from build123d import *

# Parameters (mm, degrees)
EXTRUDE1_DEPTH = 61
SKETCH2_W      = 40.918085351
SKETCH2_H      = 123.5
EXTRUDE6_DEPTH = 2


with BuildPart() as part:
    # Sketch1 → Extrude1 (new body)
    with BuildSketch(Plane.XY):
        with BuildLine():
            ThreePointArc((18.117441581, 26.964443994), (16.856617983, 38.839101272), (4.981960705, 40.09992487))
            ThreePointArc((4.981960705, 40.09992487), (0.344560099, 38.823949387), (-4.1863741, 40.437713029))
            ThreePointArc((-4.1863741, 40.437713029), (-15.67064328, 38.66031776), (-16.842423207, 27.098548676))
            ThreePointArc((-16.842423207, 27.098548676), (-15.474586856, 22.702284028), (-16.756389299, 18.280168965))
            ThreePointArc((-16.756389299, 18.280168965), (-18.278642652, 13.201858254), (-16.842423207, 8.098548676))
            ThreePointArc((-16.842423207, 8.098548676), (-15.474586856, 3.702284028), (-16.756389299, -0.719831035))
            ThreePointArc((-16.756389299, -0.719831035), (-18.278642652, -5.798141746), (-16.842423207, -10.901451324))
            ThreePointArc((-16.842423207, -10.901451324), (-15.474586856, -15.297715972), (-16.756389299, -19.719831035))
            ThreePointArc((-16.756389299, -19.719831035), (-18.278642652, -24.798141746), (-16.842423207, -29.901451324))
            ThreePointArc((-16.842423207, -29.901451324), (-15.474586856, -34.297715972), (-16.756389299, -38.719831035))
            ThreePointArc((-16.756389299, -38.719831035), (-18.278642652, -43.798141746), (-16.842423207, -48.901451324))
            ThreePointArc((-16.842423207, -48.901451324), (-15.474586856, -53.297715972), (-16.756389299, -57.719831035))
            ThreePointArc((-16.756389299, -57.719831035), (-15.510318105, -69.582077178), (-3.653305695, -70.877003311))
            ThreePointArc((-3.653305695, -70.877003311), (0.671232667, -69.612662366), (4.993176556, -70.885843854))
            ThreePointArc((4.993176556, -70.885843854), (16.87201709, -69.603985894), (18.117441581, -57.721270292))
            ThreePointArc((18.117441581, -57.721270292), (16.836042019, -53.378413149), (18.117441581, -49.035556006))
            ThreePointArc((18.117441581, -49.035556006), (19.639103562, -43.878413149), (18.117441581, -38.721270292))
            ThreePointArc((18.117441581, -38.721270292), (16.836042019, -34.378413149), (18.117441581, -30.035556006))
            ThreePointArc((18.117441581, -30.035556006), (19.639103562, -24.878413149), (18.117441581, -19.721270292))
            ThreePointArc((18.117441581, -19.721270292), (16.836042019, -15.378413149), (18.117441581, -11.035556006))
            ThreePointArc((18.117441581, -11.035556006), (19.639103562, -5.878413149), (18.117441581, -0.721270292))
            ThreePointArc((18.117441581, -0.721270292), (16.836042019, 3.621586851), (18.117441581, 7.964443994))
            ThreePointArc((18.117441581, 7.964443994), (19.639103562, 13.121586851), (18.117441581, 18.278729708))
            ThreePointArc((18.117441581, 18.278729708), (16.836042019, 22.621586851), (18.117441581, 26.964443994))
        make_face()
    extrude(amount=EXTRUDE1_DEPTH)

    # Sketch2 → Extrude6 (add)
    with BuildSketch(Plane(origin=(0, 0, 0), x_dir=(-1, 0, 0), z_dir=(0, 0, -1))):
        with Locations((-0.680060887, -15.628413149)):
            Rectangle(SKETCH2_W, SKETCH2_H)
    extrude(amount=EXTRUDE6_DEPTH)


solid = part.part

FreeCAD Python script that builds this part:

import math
import FreeCAD as App
import Part
import Sketcher

V = App.Vector
Q = App.Units.Quantity

doc = App.newDocument("Part")
body = doc.addObject("PartDesign::Body", "Body")

# Sketch on XY plane
sketch1 = body.newObject("Sketcher::SketchObject", "Sketch")
sketch1.AttachmentSupport = (doc.getObject("XY_Plane"), [""])
sketch1.MapMode = "FlatFace"
sketch1.addGeometry([
    Part.ArcOfCircle(Part.Circle(V(10.139104, 32.121587, 0), V(0, 0, 1), 9.5), math.radians(-32.87835), math.radians(122.87835)),  # 0
    Part.ArcOfCircle(Part.Circle(V(0.639104, 46.818525, 0), V(0, 0, 1), 8), math.radians(-127.098328), math.radians(-57.12165)),  # 1
    Part.ArcOfCircle(Part.Circle(V(-8.778982, 32.121587, 0), V(0, 0, 1), 9.5), math.radians(61.090182), math.radians(211.920419)),  # 2
    Part.ArcOfCircle(Part.Circle(V(-23.474206, 22.624238, 0), V(0, 0, 1), 8), math.radians(-32.888686), math.radians(34.006629)),  # 3
    Part.ArcOfCircle(Part.Circle(V(-8.778982, 13.121587, 0), V(0, 0, 1), 9.5), math.radians(147.111314), math.radians(211.920419)),  # 4
    Part.ArcOfCircle(Part.Circle(V(-23.474206, 3.624238, 0), V(0, 0, 1), 8), math.radians(-32.888686), math.radians(34.006629)),  # 5
    Part.ArcOfCircle(Part.Circle(V(-8.778982, -5.878413, 0), V(0, 0, 1), 9.5), math.radians(147.111314), math.radians(211.920419)),  # 6
    Part.ArcOfCircle(Part.Circle(V(-23.474206, -15.375762, 0), V(0, 0, 1), 8), math.radians(-32.888686), math.radians(34.006629)),  # 7
    Part.ArcOfCircle(Part.Circle(V(-8.778982, -24.878413, 0), V(0, 0, 1), 9.5), math.radians(147.111314), math.radians(211.920419)),  # 8
    Part.ArcOfCircle(Part.Circle(V(-23.474206, -34.375762, 0), V(0, 0, 1), 8), math.radians(-32.888686), math.radians(34.006629)),  # 9
    Part.ArcOfCircle(Part.Circle(V(-8.778982, -43.878413, 0), V(0, 0, 1), 9.5), math.radians(147.111314), math.radians(211.920419)),  # 10
    Part.ArcOfCircle(Part.Circle(V(-23.474206, -53.375762, 0), V(0, 0, 1), 8), math.radians(-32.888686), math.radians(34.006629)),  # 11
    Part.ArcOfCircle(Part.Circle(V(-8.778982, -62.878413, 0), V(0, 0, 1), 9.5), math.radians(147.111314), math.radians(302.65266)),  # 12
    Part.ArcOfCircle(Part.Circle(V(0.663053, -77.612658, 0), V(0, 0, 1), 8), math.radians(57.230176), math.radians(122.65266)),  # 13
    Part.ArcOfCircle(Part.Circle(V(10.139102, -62.891687, 0), V(0, 0, 1), 9.507213), math.radians(-122.769824), math.radians(32.945526)),  # 14
    Part.ArcOfCircle(Part.Circle(V(24.836042, -53.378413, 0), V(0, 0, 1), 8), math.radians(147.12165), math.radians(212.87835)),  # 15
    Part.ArcOfCircle(Part.Circle(V(10.139104, -43.878413, 0), V(0, 0, 1), 9.5), math.radians(-32.87835), math.radians(32.87835)),  # 16
    Part.ArcOfCircle(Part.Circle(V(24.836042, -34.378413, 0), V(0, 0, 1), 8), math.radians(147.12165), math.radians(212.87835)),  # 17
    Part.ArcOfCircle(Part.Circle(V(10.139104, -24.878413, 0), V(0, 0, 1), 9.5), math.radians(-32.87835), math.radians(32.87835)),  # 18
    Part.ArcOfCircle(Part.Circle(V(24.836042, -15.378413, 0), V(0, 0, 1), 8), math.radians(147.12165), math.radians(212.87835)),  # 19
    Part.ArcOfCircle(Part.Circle(V(10.139104, -5.878413, 0), V(0, 0, 1), 9.5), math.radians(-32.87835), math.radians(32.87835)),  # 20
    Part.ArcOfCircle(Part.Circle(V(24.836042, 3.621587, 0), V(0, 0, 1), 8), math.radians(147.12165), math.radians(212.87835)),  # 21
    Part.ArcOfCircle(Part.Circle(V(10.139104, 13.121587, 0), V(0, 0, 1), 9.5), math.radians(-32.87835), math.radians(32.87835)),  # 22
    Part.ArcOfCircle(Part.Circle(V(24.836042, 22.621587, 0), V(0, 0, 1), 8), math.radians(147.12165), math.radians(212.87835)),  # 23
], False)
sketch1.addConstraint([
    Sketcher.Constraint("Tangent", 0, 2, 1, 2),
    Sketcher.Constraint("Coincident", 1, 1, 2, 1),
    Sketcher.Constraint("Coincident", 2, 2, 3, 2),
    Sketcher.Constraint("Tangent", 3, 1, 4, 1),
    Sketcher.Constraint("Coincident", 4, 2, 5, 2),
    Sketcher.Constraint("Tangent", 5, 1, 6, 1),
    Sketcher.Constraint("Coincident", 6, 2, 7, 2),
    Sketcher.Constraint("Tangent", 7, 1, 8, 1),
    Sketcher.Constraint("Coincident", 8, 2, 9, 2),
    Sketcher.Constraint("Tangent", 9, 1, 10, 1),
    Sketcher.Constraint("Coincident", 10, 2, 11, 2),
    Sketcher.Constraint("Tangent", 11, 1, 12, 1),
    Sketcher.Constraint("Tangent", 12, 2, 13, 2),
    Sketcher.Constraint("Tangent", 13, 1, 14, 1),
    Sketcher.Constraint("Coincident", 14, 2, 15, 2),
    Sketcher.Constraint("Tangent", 15, 1, 16, 1),
    Sketcher.Constraint("Tangent", 16, 2, 17, 2),
    Sketcher.Constraint("Tangent", 17, 1, 18, 1),
    Sketcher.Constraint("Tangent", 18, 2, 19, 2),
    Sketcher.Constraint("Tangent", 19, 1, 20, 1),
    Sketcher.Constraint("Tangent", 20, 2, 21, 2),
    Sketcher.Constraint("Tangent", 21, 1, 22, 1),
    Sketcher.Constraint("Tangent", 22, 2, 23, 2),
    Sketcher.Constraint("Tangent", 23, 1, 0, 1),
    Sketcher.Constraint("Equal", 0, 2),
    Sketcher.Constraint("Equal", 1, 3),
    Sketcher.Constraint("Equal", 2, 4),
    Sketcher.Constraint("Equal", 3, 5),
    Sketcher.Constraint("Equal", 4, 6),
    Sketcher.Constraint("Equal", 5, 7),
    Sketcher.Constraint("Equal", 6, 8),
    Sketcher.Constraint("Equal", 7, 9),
    Sketcher.Constraint("Equal", 8, 10),
    Sketcher.Constraint("Equal", 9, 11),
    Sketcher.Constraint("Equal", 10, 12),
    Sketcher.Constraint("Equal", 11, 13),
    Sketcher.Constraint("Equal", 13, 15),
    Sketcher.Constraint("Equal", 12, 16),
    Sketcher.Constraint("Equal", 15, 17),
    Sketcher.Constraint("Equal", 16, 18),
    Sketcher.Constraint("Equal", 17, 19),
    Sketcher.Constraint("Equal", 18, 20),
    Sketcher.Constraint("Equal", 19, 21),
    Sketcher.Constraint("Equal", 20, 22),
    Sketcher.Constraint("Equal", 21, 23),
    Sketcher.Constraint("Horizontal", 0, 3, 2, 3),
    Sketcher.Constraint("Horizontal", 10, 3, 16, 3),
    Sketcher.Constraint("Horizontal", 8, 3, 18, 3),
    Sketcher.Constraint("Horizontal", 6, 3, 20, 3),
    Sketcher.Constraint("Horizontal", 4, 3, 22, 3),
    Sketcher.Constraint("Vertical", 2, 3, 4, 3),
    Sketcher.Constraint("Vertical", 3, 3, 5, 3),
    Sketcher.Constraint("Vertical", 4, 3, 6, 3),
    Sketcher.Constraint("Vertical", 5, 3, 7, 3),
    Sketcher.Constraint("Vertical", 6, 3, 8, 3),
    Sketcher.Constraint("Vertical", 7, 3, 9, 3),
    Sketcher.Constraint("Vertical", 8, 3, 10, 3),
    Sketcher.Constraint("Vertical", 9, 3, 11, 3),
    Sketcher.Constraint("Vertical", 10, 3, 12, 3),
    Sketcher.Constraint("Vertical", 0, 3, 14, 3),
    Sketcher.Constraint("Vertical", 14, 3, 16, 3),
    Sketcher.Constraint("Vertical", 15, 3, 17, 3),
    Sketcher.Constraint("Vertical", 16, 3, 18, 3),
    Sketcher.Constraint("Vertical", 17, 3, 19, 3),
    Sketcher.Constraint("Vertical", 18, 3, 20, 3),
    Sketcher.Constraint("Vertical", 19, 3, 21, 3),
    Sketcher.Constraint("Vertical", 20, 3, 22, 3),
    Sketcher.Constraint("Vertical", 21, 3, 23, 3),
    Sketcher.Constraint("Vertical", 8, 2, 10, 2),
    Sketcher.Constraint("Vertical", 14, 2, 15, 1),
    Sketcher.Constraint("Radius", 1, Q("8 mm")),
    Sketcher.Constraint("Radius", 0, Q("9.5 mm")),
    Sketcher.Constraint("DistanceY", 4, 3, 2, 3, Q("19 mm")),
    Sketcher.Constraint("DistanceX", 1, 3, 0, 3, Q("9.5 mm")),
    Sketcher.Constraint("Radius", 14, Q("9.507213 mm")),
    Sketcher.Constraint("DistanceX", 2, 3, -1, 1, Q("8.778982 mm")),
    Sketcher.Constraint("DistanceY", -1, 1, 3, 3, Q("22.624238 mm")),
    Sketcher.Constraint("DistanceY", 13, 3, -1, 1, Q("77.612658 mm")),
    Sketcher.Constraint("DistanceX", -1, 1, 0, 2, Q("4.981961 mm")),
])
pad1 = body.newObject("PartDesign::Pad", "Pad")
pad1.Profile = sketch1
pad1.Length = 61

# Sketch on XY plane
sketch2 = body.newObject("Sketcher::SketchObject", "Sketch001")
sketch2.AttachmentSupport = (doc.getObject("XY_Plane"), [""])
sketch2.MapMode = "FlatFace"
sketch2.addGeometry([
    Part.LineSegment(V(21, 46, 0), V(21, -77, 0)),
    Part.LineSegment(V(21, -77, 0), V(-20, -77, 0)),
    Part.LineSegment(V(-20, -77, 0), V(-20, 46, 0)),
    Part.LineSegment(V(-20, 46, 0), V(21, 46, 0)),
], False)
sketch2.addConstraint([
    Sketcher.Constraint("Coincident", 0, 2, 1, 1),
    Sketcher.Constraint("Coincident", 1, 2, 2, 1),
    Sketcher.Constraint("Coincident", 2, 2, 3, 1),
    Sketcher.Constraint("Coincident", 3, 2, 0, 1),
    Sketcher.Constraint("Vertical", 0),
    Sketcher.Constraint("Horizontal", 1),
    Sketcher.Constraint("Vertical", 2),
    Sketcher.Constraint("Horizontal", 3),
    Sketcher.Constraint("DistanceY", 0, 2, 0, 1, Q("123.5 mm")),
    Sketcher.Constraint("DistanceX", 1, 2, 1, 1, Q("40.918085 mm")),
    Sketcher.Constraint("DistanceX", 1, 2, -1, 1, Q("19.778982 mm")),
    Sketcher.Constraint("DistanceY", 0, 2, -1, 1, Q("77.378413 mm")),
])
pad2 = body.newObject("PartDesign::Pad", "Pad001")
pad2.Profile = sketch2
pad2.Length = 2
pad2.Reversed = True

doc.recompute()
